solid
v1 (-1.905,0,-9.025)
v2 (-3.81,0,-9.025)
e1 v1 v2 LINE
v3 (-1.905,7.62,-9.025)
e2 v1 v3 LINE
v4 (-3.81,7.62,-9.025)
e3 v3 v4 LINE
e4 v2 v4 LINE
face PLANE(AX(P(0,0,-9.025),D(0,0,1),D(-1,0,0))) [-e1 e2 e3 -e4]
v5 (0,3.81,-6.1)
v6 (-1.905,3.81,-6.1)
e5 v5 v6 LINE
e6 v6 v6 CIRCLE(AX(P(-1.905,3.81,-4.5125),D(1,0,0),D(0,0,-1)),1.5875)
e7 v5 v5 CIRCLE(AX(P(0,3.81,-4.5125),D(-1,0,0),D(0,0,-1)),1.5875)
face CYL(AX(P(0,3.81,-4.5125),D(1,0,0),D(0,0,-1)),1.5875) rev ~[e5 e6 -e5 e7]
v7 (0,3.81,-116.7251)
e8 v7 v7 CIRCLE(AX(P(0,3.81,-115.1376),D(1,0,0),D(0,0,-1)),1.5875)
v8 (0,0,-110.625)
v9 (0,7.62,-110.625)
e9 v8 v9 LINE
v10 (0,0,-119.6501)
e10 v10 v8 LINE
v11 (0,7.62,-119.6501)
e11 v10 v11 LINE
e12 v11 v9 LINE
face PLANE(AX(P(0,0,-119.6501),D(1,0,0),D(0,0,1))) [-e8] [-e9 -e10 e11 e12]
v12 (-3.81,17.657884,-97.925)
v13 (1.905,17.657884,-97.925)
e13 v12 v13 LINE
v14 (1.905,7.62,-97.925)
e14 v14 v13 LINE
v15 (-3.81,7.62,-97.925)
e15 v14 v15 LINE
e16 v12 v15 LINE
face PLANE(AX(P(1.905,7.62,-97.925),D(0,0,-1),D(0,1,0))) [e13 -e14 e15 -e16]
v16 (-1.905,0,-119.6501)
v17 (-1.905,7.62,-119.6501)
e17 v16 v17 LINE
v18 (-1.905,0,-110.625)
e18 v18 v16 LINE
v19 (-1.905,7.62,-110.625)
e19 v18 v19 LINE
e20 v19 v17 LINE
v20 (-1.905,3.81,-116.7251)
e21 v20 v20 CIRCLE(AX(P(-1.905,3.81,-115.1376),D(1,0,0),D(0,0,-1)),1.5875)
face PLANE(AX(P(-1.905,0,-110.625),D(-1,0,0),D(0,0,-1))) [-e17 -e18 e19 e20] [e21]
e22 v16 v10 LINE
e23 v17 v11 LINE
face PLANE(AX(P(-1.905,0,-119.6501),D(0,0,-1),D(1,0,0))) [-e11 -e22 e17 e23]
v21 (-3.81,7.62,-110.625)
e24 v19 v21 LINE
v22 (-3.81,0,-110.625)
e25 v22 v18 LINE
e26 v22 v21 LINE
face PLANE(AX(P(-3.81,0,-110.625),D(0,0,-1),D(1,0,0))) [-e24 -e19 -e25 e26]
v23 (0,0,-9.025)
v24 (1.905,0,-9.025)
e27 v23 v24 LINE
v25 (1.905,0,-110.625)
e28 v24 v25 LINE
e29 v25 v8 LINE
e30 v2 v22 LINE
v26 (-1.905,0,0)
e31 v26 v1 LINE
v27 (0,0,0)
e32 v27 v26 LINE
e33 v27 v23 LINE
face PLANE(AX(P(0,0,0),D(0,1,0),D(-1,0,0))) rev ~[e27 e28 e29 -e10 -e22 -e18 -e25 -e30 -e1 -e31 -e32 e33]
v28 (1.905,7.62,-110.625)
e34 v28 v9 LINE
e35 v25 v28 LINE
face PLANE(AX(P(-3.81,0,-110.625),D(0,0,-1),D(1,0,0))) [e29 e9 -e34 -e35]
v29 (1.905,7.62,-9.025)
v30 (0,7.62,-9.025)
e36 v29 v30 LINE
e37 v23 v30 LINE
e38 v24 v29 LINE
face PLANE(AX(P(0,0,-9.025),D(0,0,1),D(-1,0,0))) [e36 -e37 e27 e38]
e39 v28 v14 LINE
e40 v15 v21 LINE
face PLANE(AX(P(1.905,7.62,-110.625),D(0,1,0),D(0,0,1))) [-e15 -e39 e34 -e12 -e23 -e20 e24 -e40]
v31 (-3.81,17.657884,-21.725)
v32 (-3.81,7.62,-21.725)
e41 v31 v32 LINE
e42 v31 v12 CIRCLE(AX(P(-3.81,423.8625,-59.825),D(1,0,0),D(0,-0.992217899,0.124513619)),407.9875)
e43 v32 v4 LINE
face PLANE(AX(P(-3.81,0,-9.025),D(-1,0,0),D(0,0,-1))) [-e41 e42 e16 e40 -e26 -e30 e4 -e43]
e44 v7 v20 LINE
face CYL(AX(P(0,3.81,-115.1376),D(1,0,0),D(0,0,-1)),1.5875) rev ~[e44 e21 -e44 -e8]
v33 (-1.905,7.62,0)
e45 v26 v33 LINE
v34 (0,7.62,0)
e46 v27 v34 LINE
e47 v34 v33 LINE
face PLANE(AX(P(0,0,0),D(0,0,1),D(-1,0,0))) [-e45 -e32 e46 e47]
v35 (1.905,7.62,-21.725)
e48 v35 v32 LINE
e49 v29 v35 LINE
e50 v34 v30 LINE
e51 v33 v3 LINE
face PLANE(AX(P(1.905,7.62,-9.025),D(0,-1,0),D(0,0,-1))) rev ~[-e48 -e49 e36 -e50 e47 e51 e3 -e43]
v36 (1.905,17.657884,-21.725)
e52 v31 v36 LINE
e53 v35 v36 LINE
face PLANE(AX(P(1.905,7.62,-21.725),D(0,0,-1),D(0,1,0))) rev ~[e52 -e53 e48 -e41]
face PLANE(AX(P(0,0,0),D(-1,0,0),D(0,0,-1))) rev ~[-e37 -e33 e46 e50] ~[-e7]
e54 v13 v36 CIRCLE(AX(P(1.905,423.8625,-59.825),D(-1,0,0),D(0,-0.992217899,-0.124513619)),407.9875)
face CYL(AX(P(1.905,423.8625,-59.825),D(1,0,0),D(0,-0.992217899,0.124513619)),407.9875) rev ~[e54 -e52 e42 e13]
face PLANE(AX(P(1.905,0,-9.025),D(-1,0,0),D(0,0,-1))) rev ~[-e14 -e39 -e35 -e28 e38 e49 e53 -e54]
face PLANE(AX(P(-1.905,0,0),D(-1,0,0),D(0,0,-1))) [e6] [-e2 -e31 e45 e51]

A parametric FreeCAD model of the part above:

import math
import FreeCAD as App
import Part
import Sketcher

V = App.Vector
Q = App.Units.Quantity


def edges_at(feature, points):
    """Names of the edges that pass closest to the given points."""
    edges = feature.Shape.Edges
    near = lambda p: min(range(len(edges)), key=lambda i: edges[i].distToShape(Part.Vertex(*p))[0])
    return sorted({f"Edge{near(p) + 1}" for p in points})

doc = App.newDocument("Part")
params = doc.addObject("Spreadsheet::Sheet", "Params")
for row, (alias, value) in enumerate([
    ("sketch1_width", "0.075 in"),
    ("pad1_length", "0.3 in"),
    ("sketch2_height", "4 in"),
    ("sketch2_width", "0.225 in"),
    ("pad2_length", "0.75 in"),
    ("sketch3_diameter", "0.125 in"),
    ("pocket1_length", "0.5 in"),
    ("sketch4_height", "4 in"),
    ("sketch4_radius", "16.0625 in"),
    ("pocket2_length", "0.5 in"),
    ("fillet_radius", "0.175 in"),
    ("sketch5_width", "0.5 in"),
    ("pocket3_length", "1 in"),
], start=1):
    params.set(f"A{row}", alias)
    params.set(f"B{row}", "=" + value)
    params.setAlias(f"B{row}", alias)

body = doc.addObject("PartDesign::Body", "Body")
body.AllowCompound = True

sketch1 = doc.addObject("Sketcher::SketchObject", "Sketch")
body.addObject(sketch1)
sketch1.AttachmentSupport = (doc.XZ_Plane, [""])
sketch1.MapMode = "FlatFace"
sketch1.addGeometry([
    Part.LineSegment(V(-1.9, 0, 0), V(0, 0, 0)),
    Part.LineSegment(V(0, 0, 0), V(0, -9, 0)),
    Part.LineSegment(V(0, -9, 0), V(-1.9, -9, 0)),
    Part.LineSegment(V(-1.9, -9, 0), V(-1.9, 0, 0)),
    Part.LineSegment(V(-1.9, -110.6, 0), V(0, -110.6, 0)),
    Part.LineSegment(V(0, -110.6, 0), V(0, -119.7, 0)),
    Part.LineSegment(V(0, -119.7, 0), V(-1.9, -119.7, 0)),
    Part.LineSegment(V(-1.9, -119.7, 0), V(-1.9, -110.6, 0)),
], False)
sketch1.addConstraint([
    Sketcher.Constraint("Coincident", 0, 2, 1, 1),
    Sketcher.Constraint("Coincident", 1, 2, 2, 1),
    Sketcher.Constraint("Coincident", 2, 2, 3, 1),
    Sketcher.Constraint("Coincident", 3, 2, 0, 1),
    Sketcher.Constraint("Coincident", 4, 2, 5, 1),
    Sketcher.Constraint("Coincident", 5, 2, 6, 1),
    Sketcher.Constraint("Coincident", 6, 2, 7, 1),
    Sketcher.Constraint("Coincident", 7, 2, 4, 1),
    Sketcher.Constraint("Horizontal", 0),
    Sketcher.Constraint("Vertical", 1),
    Sketcher.Constraint("Horizontal", 2),
    Sketcher.Constraint("Vertical", 3),
    Sketcher.Constraint("Horizontal", 4),
    Sketcher.Constraint("Vertical", 5),
    Sketcher.Constraint("Horizontal", 6),
    Sketcher.Constraint("Vertical", 7),
    Sketcher.Constraint("Coincident", 0, 2, -1, 1),
    Sketcher.Constraint("PointOnObject", 4, 2, -2),
    Sketcher.Constraint("Vertical", 3, 2, 6, 2),
    Sketcher.Constraint("Equal", 3, 5),
    Sketcher.Constraint("DistanceY", 4, 2, 1, 2, Q("4 in")),
    Sketcher.Constraint("DistanceX", 0, 1, 0, 2, Q("0.075 in")),
    Sketcher.Constraint("DistanceY", 1, 2, 1, 1, Q("9.025 mm")),
])
sketch1.setExpression("Constraints[21]", "Params.sketch1_width")
pad1 = doc.addObject("PartDesign::Pad", "Pad")
body.addObject(pad1)
pad1.Profile = sketch1
pad1.setExpression("Length", "Params.pad1_length")
pad1.Reversed = True

sketch2 = doc.addObject("Sketcher::SketchObject", "Sketch001")
body.addObject(sketch2)
sketch2.AttachmentSupport = (doc.XZ_Plane, [""])
sketch2.MapMode = "FlatFace"
sketch2.addGeometry([
    Part.LineSegment(V(-4, -9, 0), V(2, -9, 0)),
    Part.LineSegment(V(2, -9, 0), V(2, -111, 0)),
    Part.LineSegment(V(2, -111, 0), V(-4, -111, 0)),
    Part.LineSegment(V(-4, -111, 0), V(-4, -9, 0)),
], False)
sketch2.addConstraint([
    Sketcher.Constraint("Coincident", 0, 2, 1, 1),
    Sketcher.Constraint("Coincident", 1, 2, 2, 1),
    Sketcher.Constraint("Coincident", 2, 2, 3, 1),
    Sketcher.Constraint("Coincident", 3, 2, 0, 1),
    Sketcher.Constraint("Horizontal", 0),
    Sketcher.Constraint("Vertical", 1),
    Sketcher.Constraint("Horizontal", 2),
    Sketcher.Constraint("Vertical", 3),
    Sketcher.Constraint("DistanceY", 1, 2, 1, 1, Q("4 in")),
    Sketcher.Constraint("DistanceX", -1, 1, 0, 2, Q("0.075 in")),
    Sketcher.Constraint("DistanceX", 0, 1, 0, 2, Q("0.225 in")),
    Sketcher.Constraint("DistanceY", 0, 2, -1, 1, Q("9.025 mm")),
])
sketch2.setExpression("Constraints[8]", "Params.sketch2_height")
sketch2.setExpression("Constraints[10]", "Params.sketch2_width")
pad2 = doc.addObject("PartDesign::Pad", "Pad001")
body.addObject(pad2)
pad2.Profile = sketch2
pad2.setExpression("Length", "Params.pad2_length")
pad2.Reversed = True

sketch3 = doc.addObject("Sketcher::SketchObject", "Sketch002")
body.addObject(sketch3)
sketch3.AttachmentSupport = (doc.YZ_Plane, [""])
sketch3.MapMode = "FlatFace"
sketch3.addGeometry([
    Part.Circle(V(3.8, -4.5, 0), V(0, 0, 1), 1.6),
    Part.Circle(V(3.8, -115.1, 0), V(0, 0, 1), 1.6),
], False)
sketch3.addConstraint([
    Sketcher.Constraint("Equal", 0, 1),
    Sketcher.Constraint("Vertical", 0, 3, 1, 3),
    Sketcher.Constraint("Diameter", 0, Q("0.125 in")),
    Sketcher.Constraint("DistanceX", -1, 1, 0, 3, Q("0.15 in")),
    Sketcher.Constraint("DistanceY", 0, 3, -1, 1, Q("4.5125 mm")),
    Sketcher.Constraint("DistanceY", 1, 3, -1, 1, Q("115.1376 mm")),
])
sketch3.setExpression("Constraints[2]", "Params.sketch3_diameter")
pocket1 = doc.addObject("PartDesign::Pocket", "Pocket")
body.addObject(pocket1)
pocket1.Profile = sketch3
pocket1.setExpression("Length", "Params.pocket1_length")

sketch4 = doc.addObject("Sketcher::SketchObject", "Sketch003")
body.addObject(sketch4)
sketch4.AttachmentSupport = (doc.YZ_Plane, [""])
sketch4.MapMode = "FlatFace"
sketch4.AttachmentOffset = App.Placement(V(0, 0, 0.075 * 25.4), App.Rotation())
sketch4.addGeometry([
    Part.ArcOfCircle(Part.Circle(V(424, -60, 0), V(0, 0, 1), 408), math.radians(172.85), math.radians(187.15)),
    Part.LineSegment(V(19, -111, 0), V(19, -9, 0)),
], False)
sketch4.addConstraint([
    Sketcher.Constraint("Coincident", 0, 1, 1, 2),
    Sketcher.Constraint("Coincident", 1, 1, 0, 2),
    Sketcher.Constraint("Vertical", 1),
    Sketcher.Constraint("DistanceY", 1, 1, 1, 2, Q("4 in")),
    Sketcher.Constraint("Radius", 0, Q("16.0625 in")),
    Sketcher.Constraint("DistanceX", -1, 1, 0, 1, Q("0.75 in")),
    Sketcher.Constraint("DistanceY", 0, 3, -1, 1, Q("59.825 mm")),
])
sketch4.setExpression("Constraints[3]", "Params.sketch4_height")
sketch4.setExpression("Constraints[4]", "Params.sketch4_radius")
pocket2 = doc.addObject("PartDesign::Pocket", "Pocket001")
body.addObject(pocket2)
pocket2.Profile = sketch4
pocket2.setExpression("Length", "Params.pocket2_length")
doc.recompute()

fillet = doc.addObject("PartDesign::Fillet", "Fillet")
body.addObject(fillet)
fillet.Base = (pocket2, edges_at(pocket2, [(-0.953, 19.05, -9.025), (-0.953, 19.05, -110.625)]))
fillet.setExpression("Radius", "Params.fillet_radius")

sketch5 = doc.addObject("Sketcher::SketchObject", "Sketch004")
body.addObject(sketch5)
sketch5.AttachmentSupport = (doc.YZ_Plane, [""])
sketch5.MapMode = "FlatFace"
sketch5.AttachmentOffset = App.Placement(V(0, 0, 0.075 * 25.4), App.Rotation())
sketch5.addGeometry([
    Part.LineSegment(V(20, -9, 0), V(8, -9, 0)),
    Part.LineSegment(V(8, -9, 0), V(8, -22, 0)),
    Part.LineSegment(V(8, -22, 0), V(20, -22, 0)),
    Part.LineSegment(V(20, -22, 0), V(20, -9, 0)),
    Part.LineSegment(V(8, -98, 0), V(8, -111, 0)),
    Part.LineSegment(V(8, -111, 0), V(20, -111, 0)),
    Part.LineSegment(V(20, -111, 0), V(20, -98, 0)),
    Part.LineSegment(V(20, -98, 0), V(8, -98, 0)),
], False)
sketch5.addConstraint([
    Sketcher.Constraint("Coincident", 0, 2, 1, 1),
    Sketcher.Constraint("Coincident", 1, 2, 2, 1),
    Sketcher.Constraint("Coincident", 2, 2, 3, 1),
    Sketcher.Constraint("Coincident", 3, 2, 0, 1),
    Sketcher.Constraint("Coincident", 4, 2, 5, 1),
    Sketcher.Constraint("Coincident", 5, 2, 6, 1),
    Sketcher.Constraint("Coincident", 6, 2, 7, 1),
    Sketcher.Constraint("Coincident", 7, 2, 4, 1),
    Sketcher.Constraint("Horizontal", 0),
    Sketcher.Constraint("Vertical", 1),
    Sketcher.Constraint("Horizontal", 2),
    Sketcher.Constraint("Vertical", 3),
    Sketcher.Constraint("Vertical", 4),
    Sketcher.Constraint("Horizontal", 5),
    Sketcher.Constraint("Vertical", 6),
    Sketcher.Constraint("Horizontal", 7),
    Sketcher.Constraint("Vertical", 1, 2, 4, 2),
    Sketcher.Constraint("Vertical", 3, 2, 5, 2),
    Sketcher.Constraint("Equal", 7, 1),
    Sketcher.Constraint("Equal", 3, 4),
    Sketcher.Constraint("DistanceX", 0, 2, 0, 1, Q("0.5 in")),
    Sketcher.Constraint("DistanceY", 4, 2, 0, 2, Q("4 in")),
    Sketcher.Constraint("DistanceX", -1, 1, 0, 2, Q("0.3 in")),
    Sketcher.Constraint("DistanceY", 0, 2, -1, 1, Q("9.025 mm")),
])
sketch5.setExpression("Constraints[20]", "Params.sketch5_width")
pocket3 = doc.addObject("PartDesign::Pocket", "Pocket002")
body.addObject(pocket3)
pocket3.Profile = sketch5
pocket3.setExpression("Length", "Params.pocket3_length")

doc.recompute()
